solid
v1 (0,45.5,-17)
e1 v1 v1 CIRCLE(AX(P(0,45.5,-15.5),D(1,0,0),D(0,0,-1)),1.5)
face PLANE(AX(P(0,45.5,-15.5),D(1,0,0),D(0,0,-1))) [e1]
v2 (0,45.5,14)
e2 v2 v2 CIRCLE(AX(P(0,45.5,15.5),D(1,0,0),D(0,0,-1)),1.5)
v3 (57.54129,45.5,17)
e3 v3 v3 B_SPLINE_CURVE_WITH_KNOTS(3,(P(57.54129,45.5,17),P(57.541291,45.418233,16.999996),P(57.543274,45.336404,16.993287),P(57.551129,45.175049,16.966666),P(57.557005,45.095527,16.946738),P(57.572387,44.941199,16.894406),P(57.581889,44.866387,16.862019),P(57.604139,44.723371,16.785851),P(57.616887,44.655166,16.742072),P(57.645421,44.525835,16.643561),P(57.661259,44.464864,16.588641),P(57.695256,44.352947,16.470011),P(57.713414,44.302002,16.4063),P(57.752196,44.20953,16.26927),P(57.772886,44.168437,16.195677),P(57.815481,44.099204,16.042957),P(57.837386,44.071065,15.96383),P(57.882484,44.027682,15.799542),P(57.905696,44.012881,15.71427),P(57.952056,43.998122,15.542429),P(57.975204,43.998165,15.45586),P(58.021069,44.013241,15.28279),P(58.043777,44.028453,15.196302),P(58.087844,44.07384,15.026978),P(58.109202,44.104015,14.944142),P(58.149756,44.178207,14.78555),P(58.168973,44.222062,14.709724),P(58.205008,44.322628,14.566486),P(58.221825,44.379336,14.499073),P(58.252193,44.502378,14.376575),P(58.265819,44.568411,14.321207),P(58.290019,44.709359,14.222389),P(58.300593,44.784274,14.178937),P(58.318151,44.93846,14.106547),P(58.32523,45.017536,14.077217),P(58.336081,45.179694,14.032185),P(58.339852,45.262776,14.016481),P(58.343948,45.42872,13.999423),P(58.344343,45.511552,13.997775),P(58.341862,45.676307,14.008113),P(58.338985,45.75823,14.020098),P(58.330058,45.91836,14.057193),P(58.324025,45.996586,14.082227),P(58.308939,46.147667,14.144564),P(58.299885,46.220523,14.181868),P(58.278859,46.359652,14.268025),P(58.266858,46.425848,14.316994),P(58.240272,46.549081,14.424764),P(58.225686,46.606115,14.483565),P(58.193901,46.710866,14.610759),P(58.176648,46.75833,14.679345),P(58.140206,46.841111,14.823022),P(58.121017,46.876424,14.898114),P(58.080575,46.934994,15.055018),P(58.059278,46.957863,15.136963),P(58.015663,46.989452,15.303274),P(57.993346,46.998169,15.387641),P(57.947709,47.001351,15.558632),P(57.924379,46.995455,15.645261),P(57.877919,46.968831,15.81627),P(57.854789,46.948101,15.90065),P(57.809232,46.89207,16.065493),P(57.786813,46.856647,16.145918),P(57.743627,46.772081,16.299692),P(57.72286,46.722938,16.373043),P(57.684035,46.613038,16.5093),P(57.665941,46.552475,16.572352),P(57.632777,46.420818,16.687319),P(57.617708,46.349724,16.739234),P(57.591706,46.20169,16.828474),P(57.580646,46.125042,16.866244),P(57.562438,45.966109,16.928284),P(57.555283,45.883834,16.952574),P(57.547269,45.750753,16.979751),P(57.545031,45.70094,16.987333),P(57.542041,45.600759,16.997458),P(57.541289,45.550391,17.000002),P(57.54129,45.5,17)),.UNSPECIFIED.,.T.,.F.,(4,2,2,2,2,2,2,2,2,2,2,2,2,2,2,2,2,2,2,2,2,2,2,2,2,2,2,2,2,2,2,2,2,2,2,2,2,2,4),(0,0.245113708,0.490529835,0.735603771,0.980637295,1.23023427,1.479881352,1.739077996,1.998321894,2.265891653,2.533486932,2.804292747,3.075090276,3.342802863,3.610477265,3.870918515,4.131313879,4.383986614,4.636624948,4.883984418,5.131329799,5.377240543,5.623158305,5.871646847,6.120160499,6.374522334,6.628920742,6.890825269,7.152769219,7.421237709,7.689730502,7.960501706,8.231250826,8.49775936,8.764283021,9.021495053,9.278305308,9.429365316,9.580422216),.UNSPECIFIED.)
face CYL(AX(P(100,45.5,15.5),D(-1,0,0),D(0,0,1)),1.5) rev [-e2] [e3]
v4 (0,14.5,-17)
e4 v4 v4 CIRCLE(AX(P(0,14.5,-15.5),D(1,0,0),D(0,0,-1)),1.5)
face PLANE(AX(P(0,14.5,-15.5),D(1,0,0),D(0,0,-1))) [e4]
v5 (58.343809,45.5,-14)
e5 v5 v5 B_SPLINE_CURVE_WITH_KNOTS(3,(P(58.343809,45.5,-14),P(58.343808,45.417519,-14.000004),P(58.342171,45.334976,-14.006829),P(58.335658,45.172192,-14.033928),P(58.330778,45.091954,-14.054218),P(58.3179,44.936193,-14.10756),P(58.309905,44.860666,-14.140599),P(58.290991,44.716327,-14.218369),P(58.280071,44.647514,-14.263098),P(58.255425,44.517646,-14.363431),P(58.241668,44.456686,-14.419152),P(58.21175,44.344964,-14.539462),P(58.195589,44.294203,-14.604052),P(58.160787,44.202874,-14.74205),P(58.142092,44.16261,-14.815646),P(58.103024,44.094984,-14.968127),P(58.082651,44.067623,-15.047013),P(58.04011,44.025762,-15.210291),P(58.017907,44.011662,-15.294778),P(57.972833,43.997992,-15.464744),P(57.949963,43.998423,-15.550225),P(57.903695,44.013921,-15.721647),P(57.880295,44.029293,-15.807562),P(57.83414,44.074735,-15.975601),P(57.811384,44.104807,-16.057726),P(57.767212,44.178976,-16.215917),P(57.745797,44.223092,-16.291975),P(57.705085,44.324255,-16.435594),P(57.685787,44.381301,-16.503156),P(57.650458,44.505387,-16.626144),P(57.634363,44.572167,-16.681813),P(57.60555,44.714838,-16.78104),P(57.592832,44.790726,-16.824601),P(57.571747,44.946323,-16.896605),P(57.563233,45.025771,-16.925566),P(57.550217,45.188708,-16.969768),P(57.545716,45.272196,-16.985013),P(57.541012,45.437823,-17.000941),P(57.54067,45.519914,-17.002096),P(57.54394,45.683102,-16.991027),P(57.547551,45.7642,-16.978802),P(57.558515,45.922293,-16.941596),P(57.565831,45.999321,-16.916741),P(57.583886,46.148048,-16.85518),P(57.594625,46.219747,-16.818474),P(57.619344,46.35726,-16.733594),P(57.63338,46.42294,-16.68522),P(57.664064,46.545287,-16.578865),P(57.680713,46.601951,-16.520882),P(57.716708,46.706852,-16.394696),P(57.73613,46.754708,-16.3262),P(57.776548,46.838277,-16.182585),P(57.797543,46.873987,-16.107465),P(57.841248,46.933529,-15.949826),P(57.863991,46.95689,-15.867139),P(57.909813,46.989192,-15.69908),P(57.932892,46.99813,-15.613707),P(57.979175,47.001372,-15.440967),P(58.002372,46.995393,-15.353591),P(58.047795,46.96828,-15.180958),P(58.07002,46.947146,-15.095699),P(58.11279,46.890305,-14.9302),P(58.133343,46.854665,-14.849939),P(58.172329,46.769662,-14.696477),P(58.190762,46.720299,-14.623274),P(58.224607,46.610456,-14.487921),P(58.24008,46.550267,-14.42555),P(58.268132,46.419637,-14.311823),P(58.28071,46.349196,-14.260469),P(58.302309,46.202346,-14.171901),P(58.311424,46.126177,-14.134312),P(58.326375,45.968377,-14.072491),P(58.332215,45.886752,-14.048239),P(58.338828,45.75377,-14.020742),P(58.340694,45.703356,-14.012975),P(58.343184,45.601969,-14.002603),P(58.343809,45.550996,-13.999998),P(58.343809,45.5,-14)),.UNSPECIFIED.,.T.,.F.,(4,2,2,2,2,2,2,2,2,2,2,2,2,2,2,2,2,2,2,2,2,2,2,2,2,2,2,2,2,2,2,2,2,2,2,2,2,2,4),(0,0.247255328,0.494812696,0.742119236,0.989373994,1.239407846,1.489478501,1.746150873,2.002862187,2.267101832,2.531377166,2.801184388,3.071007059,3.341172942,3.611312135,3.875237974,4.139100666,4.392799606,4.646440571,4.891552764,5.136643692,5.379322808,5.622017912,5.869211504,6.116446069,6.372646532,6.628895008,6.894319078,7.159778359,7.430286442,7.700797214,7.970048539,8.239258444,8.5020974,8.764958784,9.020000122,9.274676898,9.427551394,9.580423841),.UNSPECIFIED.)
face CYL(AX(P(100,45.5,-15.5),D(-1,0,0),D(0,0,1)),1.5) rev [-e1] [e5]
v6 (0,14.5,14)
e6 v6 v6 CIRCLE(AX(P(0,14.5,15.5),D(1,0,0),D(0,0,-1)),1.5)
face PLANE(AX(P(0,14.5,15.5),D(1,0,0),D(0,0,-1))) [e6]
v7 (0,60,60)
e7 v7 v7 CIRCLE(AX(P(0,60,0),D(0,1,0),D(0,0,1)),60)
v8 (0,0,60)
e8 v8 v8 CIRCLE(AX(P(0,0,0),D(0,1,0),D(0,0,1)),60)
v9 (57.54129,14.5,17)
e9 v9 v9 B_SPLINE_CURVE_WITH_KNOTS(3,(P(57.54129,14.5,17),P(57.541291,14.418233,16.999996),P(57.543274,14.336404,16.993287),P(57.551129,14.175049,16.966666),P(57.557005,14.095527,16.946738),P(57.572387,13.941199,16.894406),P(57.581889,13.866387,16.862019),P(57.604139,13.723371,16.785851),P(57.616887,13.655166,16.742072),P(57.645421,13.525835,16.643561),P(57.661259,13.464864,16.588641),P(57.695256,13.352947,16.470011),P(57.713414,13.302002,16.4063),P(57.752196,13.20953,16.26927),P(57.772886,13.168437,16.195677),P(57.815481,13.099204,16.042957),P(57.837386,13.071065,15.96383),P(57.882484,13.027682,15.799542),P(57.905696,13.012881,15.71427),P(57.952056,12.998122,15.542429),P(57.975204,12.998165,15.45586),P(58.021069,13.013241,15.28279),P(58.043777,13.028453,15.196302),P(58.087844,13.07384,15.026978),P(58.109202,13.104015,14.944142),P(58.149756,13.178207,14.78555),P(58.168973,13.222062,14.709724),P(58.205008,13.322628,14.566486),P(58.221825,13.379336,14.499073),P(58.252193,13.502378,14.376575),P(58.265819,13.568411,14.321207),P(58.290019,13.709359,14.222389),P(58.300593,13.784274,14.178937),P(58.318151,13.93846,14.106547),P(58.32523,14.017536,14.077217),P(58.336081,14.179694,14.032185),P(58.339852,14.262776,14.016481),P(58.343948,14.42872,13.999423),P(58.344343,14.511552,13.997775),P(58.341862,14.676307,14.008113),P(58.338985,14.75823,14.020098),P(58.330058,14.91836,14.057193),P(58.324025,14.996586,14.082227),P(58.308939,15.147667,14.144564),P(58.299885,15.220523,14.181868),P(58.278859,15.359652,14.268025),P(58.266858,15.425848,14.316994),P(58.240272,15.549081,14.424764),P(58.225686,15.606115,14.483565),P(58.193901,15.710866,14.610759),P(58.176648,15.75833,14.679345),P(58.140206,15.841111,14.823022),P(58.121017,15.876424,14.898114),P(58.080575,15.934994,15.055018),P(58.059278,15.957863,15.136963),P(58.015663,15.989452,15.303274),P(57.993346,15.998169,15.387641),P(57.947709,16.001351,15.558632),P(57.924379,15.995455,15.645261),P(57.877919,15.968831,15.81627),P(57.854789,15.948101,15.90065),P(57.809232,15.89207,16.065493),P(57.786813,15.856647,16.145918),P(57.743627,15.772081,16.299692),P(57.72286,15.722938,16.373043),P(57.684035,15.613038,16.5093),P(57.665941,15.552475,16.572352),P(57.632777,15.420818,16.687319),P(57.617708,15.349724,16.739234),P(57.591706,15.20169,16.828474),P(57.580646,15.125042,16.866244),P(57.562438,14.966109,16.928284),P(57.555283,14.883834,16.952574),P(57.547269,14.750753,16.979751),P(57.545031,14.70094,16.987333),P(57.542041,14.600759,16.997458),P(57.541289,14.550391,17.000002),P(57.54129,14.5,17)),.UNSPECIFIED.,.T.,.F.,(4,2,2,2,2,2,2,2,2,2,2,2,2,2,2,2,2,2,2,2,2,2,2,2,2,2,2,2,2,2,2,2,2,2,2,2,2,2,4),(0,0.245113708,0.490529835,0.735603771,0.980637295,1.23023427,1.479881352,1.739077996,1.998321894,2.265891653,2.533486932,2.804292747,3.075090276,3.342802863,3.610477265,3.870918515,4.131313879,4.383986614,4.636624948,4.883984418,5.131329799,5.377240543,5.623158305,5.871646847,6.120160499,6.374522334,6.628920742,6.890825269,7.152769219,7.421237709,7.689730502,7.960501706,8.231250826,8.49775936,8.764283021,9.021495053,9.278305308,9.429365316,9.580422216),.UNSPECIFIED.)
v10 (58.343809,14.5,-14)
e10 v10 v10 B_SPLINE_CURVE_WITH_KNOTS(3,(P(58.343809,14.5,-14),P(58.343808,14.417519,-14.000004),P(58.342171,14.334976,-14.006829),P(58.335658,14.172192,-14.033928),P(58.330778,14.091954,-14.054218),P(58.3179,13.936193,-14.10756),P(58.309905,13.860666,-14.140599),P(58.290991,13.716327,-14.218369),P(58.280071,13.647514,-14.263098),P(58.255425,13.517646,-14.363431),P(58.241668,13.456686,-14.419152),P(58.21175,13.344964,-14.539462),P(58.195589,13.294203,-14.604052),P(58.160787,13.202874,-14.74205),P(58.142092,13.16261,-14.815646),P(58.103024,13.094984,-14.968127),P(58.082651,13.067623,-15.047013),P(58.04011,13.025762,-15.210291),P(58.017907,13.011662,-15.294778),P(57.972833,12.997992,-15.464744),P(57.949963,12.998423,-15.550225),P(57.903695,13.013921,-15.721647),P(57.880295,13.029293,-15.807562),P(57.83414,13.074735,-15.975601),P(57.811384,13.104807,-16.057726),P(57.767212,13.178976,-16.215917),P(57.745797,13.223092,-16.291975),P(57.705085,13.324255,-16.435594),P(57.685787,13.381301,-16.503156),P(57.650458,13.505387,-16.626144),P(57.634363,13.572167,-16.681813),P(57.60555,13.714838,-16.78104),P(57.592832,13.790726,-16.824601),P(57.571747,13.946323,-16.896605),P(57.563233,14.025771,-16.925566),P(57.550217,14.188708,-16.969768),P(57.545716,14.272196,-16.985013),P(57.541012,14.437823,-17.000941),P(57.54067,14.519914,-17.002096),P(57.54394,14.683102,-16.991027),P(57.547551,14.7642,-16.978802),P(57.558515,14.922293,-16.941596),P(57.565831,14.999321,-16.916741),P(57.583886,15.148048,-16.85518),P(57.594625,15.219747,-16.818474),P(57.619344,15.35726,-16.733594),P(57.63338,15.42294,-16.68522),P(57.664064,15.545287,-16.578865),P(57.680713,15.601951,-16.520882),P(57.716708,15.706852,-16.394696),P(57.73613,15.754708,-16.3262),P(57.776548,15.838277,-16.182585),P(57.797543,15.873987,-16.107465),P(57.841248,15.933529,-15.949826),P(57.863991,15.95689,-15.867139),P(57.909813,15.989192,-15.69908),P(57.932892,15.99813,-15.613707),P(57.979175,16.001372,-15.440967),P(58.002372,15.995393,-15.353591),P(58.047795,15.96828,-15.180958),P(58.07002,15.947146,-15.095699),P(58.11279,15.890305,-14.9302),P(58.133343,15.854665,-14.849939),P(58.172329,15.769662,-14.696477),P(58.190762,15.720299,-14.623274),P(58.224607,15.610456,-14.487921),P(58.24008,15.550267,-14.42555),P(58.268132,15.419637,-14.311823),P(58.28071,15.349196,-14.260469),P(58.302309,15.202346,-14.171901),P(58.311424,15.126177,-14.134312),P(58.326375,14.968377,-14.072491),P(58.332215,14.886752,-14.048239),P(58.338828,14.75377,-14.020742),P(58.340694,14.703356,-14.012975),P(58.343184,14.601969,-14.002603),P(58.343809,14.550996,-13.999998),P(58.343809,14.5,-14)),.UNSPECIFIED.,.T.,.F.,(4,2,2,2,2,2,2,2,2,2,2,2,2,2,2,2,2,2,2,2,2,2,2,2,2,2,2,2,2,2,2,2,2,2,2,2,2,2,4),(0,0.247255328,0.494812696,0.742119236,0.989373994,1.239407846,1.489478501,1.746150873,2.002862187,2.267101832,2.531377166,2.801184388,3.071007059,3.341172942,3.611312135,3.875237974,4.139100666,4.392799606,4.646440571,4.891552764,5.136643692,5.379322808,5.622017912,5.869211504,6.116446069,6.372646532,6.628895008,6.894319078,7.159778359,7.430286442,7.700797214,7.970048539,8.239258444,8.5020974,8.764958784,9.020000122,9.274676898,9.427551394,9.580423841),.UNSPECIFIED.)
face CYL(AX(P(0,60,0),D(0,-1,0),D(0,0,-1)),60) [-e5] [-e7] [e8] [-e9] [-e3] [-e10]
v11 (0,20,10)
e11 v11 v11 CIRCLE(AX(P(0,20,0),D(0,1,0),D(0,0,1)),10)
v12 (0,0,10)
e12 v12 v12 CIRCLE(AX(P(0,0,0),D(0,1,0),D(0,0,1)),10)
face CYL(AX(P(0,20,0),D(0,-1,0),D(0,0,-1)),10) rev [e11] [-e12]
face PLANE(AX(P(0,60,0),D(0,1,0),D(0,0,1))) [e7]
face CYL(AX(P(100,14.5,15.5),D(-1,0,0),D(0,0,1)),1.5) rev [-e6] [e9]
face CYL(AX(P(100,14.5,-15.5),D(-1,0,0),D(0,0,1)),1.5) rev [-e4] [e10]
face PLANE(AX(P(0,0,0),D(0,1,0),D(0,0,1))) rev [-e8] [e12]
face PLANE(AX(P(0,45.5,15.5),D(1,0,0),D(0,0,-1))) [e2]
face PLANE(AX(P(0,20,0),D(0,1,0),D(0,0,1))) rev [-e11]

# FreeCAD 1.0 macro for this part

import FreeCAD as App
import Part
import Sketcher
Q = App.Units.Quantity

doc = App.newDocument("Part")
body = doc.addObject("PartDesign::Body", "Body")

sketch1 = body.newObject("Sketcher::SketchObject", "Sketch")
sketch1.AttachmentSupport = (doc.getObject("XZ_Plane"), [""])
sketch1.MapMode = "FlatFace"
sketch1.addGeometry(Part.Circle(App.Vector(0, 0, 0), App.Vector(0, 0, 1), 60), False)
sketch1.addConstraint(Sketcher.Constraint("Coincident", 0, 3, -1, 1))
sketch1.addConstraint(Sketcher.Constraint("Diameter", 0, Q("120 mm")))
pad1 = body.newObject("PartDesign::Pad", "Pad")
pad1.Profile = sketch1
pad1.Length = 60
pad1.Reversed = True

sketch2 = body.newObject("Sketcher::SketchObject", "Sketch001")
sketch2.AttachmentSupport = (doc.getObject("XZ_Plane"), [""])
sketch2.MapMode = "FlatFace"
sketch2.addGeometry(Part.Circle(App.Vector(0, 0, 0), App.Vector(0, 0, 1), 10), False)
sketch2.addConstraint(Sketcher.Constraint("Coincident", 0, 3, -1, 1))
sketch2.addConstraint(Sketcher.Constraint("Diameter", 0, Q("20 mm")))
pocket1 = body.newObject("PartDesign::Pocket", "Pocket")
pocket1.Profile = sketch2
pocket1.Length = 20

sketch3 = body.newObject("Sketcher::SketchObject", "Sketch002")
sketch3.AttachmentSupport = (doc.getObject("YZ_Plane"), [""])
sketch3.MapMode = "FlatFace"
sketch3.addGeometry(Part.Circle(App.Vector(45.5, 15.5, 0), App.Vector(0, 0, 1), 1.5), False)
sketch3.addGeometry(Part.Circle(App.Vector(14.5, 15.5, 0), App.Vector(0, 0, 1), 1.5), False)
sketch3.addGeometry(Part.Circle(App.Vector(14.5, -15.5, 0), App.Vector(0, 0, 1), 1.5), False)
sketch3.addGeometry(Part.Circle(App.Vector(45.5, -15.5, 0), App.Vector(0, 0, 1), 1.5), False)
sketch3.addConstraint(Sketcher.Constraint("Equal", 0, 1))
sketch3.addConstraint(Sketcher.Constraint("Equal", 1, 2))
sketch3.addConstraint(Sketcher.Constraint("Equal", 2, 3))
sketch3.addConstraint(Sketcher.Constraint("Symmetric", 1, 3, 2, 3, -1))
sketch3.addConstraint(Sketcher.Constraint("Symmetric", 0, 3, 3, 3, -1))
sketch3.addConstraint(Sketcher.Constraint("Horizontal", 0, 3, 1, 3))
sketch3.addConstraint(Sketcher.Constraint("Diameter", 0, Q("3 mm")))
sketch3.addConstraint(Sketcher.Constraint("DistanceX", 1, 3, 0, 3, Q("31 mm")))
sketch3.addConstraint(Sketcher.Constraint("DistanceY", 2, 3, 1, 3, Q("31 mm")))
sketch3.addConstraint(Sketcher.Constraint("DistanceX", -1, 1, 0, 3, Q("45.5 mm")))
pocket2 = body.newObject("PartDesign::Pocket", "Pocket001")
pocket2.Profile = sketch3
pocket2.Length = 100
pocket2.Reversed = True

doc.recompute()
